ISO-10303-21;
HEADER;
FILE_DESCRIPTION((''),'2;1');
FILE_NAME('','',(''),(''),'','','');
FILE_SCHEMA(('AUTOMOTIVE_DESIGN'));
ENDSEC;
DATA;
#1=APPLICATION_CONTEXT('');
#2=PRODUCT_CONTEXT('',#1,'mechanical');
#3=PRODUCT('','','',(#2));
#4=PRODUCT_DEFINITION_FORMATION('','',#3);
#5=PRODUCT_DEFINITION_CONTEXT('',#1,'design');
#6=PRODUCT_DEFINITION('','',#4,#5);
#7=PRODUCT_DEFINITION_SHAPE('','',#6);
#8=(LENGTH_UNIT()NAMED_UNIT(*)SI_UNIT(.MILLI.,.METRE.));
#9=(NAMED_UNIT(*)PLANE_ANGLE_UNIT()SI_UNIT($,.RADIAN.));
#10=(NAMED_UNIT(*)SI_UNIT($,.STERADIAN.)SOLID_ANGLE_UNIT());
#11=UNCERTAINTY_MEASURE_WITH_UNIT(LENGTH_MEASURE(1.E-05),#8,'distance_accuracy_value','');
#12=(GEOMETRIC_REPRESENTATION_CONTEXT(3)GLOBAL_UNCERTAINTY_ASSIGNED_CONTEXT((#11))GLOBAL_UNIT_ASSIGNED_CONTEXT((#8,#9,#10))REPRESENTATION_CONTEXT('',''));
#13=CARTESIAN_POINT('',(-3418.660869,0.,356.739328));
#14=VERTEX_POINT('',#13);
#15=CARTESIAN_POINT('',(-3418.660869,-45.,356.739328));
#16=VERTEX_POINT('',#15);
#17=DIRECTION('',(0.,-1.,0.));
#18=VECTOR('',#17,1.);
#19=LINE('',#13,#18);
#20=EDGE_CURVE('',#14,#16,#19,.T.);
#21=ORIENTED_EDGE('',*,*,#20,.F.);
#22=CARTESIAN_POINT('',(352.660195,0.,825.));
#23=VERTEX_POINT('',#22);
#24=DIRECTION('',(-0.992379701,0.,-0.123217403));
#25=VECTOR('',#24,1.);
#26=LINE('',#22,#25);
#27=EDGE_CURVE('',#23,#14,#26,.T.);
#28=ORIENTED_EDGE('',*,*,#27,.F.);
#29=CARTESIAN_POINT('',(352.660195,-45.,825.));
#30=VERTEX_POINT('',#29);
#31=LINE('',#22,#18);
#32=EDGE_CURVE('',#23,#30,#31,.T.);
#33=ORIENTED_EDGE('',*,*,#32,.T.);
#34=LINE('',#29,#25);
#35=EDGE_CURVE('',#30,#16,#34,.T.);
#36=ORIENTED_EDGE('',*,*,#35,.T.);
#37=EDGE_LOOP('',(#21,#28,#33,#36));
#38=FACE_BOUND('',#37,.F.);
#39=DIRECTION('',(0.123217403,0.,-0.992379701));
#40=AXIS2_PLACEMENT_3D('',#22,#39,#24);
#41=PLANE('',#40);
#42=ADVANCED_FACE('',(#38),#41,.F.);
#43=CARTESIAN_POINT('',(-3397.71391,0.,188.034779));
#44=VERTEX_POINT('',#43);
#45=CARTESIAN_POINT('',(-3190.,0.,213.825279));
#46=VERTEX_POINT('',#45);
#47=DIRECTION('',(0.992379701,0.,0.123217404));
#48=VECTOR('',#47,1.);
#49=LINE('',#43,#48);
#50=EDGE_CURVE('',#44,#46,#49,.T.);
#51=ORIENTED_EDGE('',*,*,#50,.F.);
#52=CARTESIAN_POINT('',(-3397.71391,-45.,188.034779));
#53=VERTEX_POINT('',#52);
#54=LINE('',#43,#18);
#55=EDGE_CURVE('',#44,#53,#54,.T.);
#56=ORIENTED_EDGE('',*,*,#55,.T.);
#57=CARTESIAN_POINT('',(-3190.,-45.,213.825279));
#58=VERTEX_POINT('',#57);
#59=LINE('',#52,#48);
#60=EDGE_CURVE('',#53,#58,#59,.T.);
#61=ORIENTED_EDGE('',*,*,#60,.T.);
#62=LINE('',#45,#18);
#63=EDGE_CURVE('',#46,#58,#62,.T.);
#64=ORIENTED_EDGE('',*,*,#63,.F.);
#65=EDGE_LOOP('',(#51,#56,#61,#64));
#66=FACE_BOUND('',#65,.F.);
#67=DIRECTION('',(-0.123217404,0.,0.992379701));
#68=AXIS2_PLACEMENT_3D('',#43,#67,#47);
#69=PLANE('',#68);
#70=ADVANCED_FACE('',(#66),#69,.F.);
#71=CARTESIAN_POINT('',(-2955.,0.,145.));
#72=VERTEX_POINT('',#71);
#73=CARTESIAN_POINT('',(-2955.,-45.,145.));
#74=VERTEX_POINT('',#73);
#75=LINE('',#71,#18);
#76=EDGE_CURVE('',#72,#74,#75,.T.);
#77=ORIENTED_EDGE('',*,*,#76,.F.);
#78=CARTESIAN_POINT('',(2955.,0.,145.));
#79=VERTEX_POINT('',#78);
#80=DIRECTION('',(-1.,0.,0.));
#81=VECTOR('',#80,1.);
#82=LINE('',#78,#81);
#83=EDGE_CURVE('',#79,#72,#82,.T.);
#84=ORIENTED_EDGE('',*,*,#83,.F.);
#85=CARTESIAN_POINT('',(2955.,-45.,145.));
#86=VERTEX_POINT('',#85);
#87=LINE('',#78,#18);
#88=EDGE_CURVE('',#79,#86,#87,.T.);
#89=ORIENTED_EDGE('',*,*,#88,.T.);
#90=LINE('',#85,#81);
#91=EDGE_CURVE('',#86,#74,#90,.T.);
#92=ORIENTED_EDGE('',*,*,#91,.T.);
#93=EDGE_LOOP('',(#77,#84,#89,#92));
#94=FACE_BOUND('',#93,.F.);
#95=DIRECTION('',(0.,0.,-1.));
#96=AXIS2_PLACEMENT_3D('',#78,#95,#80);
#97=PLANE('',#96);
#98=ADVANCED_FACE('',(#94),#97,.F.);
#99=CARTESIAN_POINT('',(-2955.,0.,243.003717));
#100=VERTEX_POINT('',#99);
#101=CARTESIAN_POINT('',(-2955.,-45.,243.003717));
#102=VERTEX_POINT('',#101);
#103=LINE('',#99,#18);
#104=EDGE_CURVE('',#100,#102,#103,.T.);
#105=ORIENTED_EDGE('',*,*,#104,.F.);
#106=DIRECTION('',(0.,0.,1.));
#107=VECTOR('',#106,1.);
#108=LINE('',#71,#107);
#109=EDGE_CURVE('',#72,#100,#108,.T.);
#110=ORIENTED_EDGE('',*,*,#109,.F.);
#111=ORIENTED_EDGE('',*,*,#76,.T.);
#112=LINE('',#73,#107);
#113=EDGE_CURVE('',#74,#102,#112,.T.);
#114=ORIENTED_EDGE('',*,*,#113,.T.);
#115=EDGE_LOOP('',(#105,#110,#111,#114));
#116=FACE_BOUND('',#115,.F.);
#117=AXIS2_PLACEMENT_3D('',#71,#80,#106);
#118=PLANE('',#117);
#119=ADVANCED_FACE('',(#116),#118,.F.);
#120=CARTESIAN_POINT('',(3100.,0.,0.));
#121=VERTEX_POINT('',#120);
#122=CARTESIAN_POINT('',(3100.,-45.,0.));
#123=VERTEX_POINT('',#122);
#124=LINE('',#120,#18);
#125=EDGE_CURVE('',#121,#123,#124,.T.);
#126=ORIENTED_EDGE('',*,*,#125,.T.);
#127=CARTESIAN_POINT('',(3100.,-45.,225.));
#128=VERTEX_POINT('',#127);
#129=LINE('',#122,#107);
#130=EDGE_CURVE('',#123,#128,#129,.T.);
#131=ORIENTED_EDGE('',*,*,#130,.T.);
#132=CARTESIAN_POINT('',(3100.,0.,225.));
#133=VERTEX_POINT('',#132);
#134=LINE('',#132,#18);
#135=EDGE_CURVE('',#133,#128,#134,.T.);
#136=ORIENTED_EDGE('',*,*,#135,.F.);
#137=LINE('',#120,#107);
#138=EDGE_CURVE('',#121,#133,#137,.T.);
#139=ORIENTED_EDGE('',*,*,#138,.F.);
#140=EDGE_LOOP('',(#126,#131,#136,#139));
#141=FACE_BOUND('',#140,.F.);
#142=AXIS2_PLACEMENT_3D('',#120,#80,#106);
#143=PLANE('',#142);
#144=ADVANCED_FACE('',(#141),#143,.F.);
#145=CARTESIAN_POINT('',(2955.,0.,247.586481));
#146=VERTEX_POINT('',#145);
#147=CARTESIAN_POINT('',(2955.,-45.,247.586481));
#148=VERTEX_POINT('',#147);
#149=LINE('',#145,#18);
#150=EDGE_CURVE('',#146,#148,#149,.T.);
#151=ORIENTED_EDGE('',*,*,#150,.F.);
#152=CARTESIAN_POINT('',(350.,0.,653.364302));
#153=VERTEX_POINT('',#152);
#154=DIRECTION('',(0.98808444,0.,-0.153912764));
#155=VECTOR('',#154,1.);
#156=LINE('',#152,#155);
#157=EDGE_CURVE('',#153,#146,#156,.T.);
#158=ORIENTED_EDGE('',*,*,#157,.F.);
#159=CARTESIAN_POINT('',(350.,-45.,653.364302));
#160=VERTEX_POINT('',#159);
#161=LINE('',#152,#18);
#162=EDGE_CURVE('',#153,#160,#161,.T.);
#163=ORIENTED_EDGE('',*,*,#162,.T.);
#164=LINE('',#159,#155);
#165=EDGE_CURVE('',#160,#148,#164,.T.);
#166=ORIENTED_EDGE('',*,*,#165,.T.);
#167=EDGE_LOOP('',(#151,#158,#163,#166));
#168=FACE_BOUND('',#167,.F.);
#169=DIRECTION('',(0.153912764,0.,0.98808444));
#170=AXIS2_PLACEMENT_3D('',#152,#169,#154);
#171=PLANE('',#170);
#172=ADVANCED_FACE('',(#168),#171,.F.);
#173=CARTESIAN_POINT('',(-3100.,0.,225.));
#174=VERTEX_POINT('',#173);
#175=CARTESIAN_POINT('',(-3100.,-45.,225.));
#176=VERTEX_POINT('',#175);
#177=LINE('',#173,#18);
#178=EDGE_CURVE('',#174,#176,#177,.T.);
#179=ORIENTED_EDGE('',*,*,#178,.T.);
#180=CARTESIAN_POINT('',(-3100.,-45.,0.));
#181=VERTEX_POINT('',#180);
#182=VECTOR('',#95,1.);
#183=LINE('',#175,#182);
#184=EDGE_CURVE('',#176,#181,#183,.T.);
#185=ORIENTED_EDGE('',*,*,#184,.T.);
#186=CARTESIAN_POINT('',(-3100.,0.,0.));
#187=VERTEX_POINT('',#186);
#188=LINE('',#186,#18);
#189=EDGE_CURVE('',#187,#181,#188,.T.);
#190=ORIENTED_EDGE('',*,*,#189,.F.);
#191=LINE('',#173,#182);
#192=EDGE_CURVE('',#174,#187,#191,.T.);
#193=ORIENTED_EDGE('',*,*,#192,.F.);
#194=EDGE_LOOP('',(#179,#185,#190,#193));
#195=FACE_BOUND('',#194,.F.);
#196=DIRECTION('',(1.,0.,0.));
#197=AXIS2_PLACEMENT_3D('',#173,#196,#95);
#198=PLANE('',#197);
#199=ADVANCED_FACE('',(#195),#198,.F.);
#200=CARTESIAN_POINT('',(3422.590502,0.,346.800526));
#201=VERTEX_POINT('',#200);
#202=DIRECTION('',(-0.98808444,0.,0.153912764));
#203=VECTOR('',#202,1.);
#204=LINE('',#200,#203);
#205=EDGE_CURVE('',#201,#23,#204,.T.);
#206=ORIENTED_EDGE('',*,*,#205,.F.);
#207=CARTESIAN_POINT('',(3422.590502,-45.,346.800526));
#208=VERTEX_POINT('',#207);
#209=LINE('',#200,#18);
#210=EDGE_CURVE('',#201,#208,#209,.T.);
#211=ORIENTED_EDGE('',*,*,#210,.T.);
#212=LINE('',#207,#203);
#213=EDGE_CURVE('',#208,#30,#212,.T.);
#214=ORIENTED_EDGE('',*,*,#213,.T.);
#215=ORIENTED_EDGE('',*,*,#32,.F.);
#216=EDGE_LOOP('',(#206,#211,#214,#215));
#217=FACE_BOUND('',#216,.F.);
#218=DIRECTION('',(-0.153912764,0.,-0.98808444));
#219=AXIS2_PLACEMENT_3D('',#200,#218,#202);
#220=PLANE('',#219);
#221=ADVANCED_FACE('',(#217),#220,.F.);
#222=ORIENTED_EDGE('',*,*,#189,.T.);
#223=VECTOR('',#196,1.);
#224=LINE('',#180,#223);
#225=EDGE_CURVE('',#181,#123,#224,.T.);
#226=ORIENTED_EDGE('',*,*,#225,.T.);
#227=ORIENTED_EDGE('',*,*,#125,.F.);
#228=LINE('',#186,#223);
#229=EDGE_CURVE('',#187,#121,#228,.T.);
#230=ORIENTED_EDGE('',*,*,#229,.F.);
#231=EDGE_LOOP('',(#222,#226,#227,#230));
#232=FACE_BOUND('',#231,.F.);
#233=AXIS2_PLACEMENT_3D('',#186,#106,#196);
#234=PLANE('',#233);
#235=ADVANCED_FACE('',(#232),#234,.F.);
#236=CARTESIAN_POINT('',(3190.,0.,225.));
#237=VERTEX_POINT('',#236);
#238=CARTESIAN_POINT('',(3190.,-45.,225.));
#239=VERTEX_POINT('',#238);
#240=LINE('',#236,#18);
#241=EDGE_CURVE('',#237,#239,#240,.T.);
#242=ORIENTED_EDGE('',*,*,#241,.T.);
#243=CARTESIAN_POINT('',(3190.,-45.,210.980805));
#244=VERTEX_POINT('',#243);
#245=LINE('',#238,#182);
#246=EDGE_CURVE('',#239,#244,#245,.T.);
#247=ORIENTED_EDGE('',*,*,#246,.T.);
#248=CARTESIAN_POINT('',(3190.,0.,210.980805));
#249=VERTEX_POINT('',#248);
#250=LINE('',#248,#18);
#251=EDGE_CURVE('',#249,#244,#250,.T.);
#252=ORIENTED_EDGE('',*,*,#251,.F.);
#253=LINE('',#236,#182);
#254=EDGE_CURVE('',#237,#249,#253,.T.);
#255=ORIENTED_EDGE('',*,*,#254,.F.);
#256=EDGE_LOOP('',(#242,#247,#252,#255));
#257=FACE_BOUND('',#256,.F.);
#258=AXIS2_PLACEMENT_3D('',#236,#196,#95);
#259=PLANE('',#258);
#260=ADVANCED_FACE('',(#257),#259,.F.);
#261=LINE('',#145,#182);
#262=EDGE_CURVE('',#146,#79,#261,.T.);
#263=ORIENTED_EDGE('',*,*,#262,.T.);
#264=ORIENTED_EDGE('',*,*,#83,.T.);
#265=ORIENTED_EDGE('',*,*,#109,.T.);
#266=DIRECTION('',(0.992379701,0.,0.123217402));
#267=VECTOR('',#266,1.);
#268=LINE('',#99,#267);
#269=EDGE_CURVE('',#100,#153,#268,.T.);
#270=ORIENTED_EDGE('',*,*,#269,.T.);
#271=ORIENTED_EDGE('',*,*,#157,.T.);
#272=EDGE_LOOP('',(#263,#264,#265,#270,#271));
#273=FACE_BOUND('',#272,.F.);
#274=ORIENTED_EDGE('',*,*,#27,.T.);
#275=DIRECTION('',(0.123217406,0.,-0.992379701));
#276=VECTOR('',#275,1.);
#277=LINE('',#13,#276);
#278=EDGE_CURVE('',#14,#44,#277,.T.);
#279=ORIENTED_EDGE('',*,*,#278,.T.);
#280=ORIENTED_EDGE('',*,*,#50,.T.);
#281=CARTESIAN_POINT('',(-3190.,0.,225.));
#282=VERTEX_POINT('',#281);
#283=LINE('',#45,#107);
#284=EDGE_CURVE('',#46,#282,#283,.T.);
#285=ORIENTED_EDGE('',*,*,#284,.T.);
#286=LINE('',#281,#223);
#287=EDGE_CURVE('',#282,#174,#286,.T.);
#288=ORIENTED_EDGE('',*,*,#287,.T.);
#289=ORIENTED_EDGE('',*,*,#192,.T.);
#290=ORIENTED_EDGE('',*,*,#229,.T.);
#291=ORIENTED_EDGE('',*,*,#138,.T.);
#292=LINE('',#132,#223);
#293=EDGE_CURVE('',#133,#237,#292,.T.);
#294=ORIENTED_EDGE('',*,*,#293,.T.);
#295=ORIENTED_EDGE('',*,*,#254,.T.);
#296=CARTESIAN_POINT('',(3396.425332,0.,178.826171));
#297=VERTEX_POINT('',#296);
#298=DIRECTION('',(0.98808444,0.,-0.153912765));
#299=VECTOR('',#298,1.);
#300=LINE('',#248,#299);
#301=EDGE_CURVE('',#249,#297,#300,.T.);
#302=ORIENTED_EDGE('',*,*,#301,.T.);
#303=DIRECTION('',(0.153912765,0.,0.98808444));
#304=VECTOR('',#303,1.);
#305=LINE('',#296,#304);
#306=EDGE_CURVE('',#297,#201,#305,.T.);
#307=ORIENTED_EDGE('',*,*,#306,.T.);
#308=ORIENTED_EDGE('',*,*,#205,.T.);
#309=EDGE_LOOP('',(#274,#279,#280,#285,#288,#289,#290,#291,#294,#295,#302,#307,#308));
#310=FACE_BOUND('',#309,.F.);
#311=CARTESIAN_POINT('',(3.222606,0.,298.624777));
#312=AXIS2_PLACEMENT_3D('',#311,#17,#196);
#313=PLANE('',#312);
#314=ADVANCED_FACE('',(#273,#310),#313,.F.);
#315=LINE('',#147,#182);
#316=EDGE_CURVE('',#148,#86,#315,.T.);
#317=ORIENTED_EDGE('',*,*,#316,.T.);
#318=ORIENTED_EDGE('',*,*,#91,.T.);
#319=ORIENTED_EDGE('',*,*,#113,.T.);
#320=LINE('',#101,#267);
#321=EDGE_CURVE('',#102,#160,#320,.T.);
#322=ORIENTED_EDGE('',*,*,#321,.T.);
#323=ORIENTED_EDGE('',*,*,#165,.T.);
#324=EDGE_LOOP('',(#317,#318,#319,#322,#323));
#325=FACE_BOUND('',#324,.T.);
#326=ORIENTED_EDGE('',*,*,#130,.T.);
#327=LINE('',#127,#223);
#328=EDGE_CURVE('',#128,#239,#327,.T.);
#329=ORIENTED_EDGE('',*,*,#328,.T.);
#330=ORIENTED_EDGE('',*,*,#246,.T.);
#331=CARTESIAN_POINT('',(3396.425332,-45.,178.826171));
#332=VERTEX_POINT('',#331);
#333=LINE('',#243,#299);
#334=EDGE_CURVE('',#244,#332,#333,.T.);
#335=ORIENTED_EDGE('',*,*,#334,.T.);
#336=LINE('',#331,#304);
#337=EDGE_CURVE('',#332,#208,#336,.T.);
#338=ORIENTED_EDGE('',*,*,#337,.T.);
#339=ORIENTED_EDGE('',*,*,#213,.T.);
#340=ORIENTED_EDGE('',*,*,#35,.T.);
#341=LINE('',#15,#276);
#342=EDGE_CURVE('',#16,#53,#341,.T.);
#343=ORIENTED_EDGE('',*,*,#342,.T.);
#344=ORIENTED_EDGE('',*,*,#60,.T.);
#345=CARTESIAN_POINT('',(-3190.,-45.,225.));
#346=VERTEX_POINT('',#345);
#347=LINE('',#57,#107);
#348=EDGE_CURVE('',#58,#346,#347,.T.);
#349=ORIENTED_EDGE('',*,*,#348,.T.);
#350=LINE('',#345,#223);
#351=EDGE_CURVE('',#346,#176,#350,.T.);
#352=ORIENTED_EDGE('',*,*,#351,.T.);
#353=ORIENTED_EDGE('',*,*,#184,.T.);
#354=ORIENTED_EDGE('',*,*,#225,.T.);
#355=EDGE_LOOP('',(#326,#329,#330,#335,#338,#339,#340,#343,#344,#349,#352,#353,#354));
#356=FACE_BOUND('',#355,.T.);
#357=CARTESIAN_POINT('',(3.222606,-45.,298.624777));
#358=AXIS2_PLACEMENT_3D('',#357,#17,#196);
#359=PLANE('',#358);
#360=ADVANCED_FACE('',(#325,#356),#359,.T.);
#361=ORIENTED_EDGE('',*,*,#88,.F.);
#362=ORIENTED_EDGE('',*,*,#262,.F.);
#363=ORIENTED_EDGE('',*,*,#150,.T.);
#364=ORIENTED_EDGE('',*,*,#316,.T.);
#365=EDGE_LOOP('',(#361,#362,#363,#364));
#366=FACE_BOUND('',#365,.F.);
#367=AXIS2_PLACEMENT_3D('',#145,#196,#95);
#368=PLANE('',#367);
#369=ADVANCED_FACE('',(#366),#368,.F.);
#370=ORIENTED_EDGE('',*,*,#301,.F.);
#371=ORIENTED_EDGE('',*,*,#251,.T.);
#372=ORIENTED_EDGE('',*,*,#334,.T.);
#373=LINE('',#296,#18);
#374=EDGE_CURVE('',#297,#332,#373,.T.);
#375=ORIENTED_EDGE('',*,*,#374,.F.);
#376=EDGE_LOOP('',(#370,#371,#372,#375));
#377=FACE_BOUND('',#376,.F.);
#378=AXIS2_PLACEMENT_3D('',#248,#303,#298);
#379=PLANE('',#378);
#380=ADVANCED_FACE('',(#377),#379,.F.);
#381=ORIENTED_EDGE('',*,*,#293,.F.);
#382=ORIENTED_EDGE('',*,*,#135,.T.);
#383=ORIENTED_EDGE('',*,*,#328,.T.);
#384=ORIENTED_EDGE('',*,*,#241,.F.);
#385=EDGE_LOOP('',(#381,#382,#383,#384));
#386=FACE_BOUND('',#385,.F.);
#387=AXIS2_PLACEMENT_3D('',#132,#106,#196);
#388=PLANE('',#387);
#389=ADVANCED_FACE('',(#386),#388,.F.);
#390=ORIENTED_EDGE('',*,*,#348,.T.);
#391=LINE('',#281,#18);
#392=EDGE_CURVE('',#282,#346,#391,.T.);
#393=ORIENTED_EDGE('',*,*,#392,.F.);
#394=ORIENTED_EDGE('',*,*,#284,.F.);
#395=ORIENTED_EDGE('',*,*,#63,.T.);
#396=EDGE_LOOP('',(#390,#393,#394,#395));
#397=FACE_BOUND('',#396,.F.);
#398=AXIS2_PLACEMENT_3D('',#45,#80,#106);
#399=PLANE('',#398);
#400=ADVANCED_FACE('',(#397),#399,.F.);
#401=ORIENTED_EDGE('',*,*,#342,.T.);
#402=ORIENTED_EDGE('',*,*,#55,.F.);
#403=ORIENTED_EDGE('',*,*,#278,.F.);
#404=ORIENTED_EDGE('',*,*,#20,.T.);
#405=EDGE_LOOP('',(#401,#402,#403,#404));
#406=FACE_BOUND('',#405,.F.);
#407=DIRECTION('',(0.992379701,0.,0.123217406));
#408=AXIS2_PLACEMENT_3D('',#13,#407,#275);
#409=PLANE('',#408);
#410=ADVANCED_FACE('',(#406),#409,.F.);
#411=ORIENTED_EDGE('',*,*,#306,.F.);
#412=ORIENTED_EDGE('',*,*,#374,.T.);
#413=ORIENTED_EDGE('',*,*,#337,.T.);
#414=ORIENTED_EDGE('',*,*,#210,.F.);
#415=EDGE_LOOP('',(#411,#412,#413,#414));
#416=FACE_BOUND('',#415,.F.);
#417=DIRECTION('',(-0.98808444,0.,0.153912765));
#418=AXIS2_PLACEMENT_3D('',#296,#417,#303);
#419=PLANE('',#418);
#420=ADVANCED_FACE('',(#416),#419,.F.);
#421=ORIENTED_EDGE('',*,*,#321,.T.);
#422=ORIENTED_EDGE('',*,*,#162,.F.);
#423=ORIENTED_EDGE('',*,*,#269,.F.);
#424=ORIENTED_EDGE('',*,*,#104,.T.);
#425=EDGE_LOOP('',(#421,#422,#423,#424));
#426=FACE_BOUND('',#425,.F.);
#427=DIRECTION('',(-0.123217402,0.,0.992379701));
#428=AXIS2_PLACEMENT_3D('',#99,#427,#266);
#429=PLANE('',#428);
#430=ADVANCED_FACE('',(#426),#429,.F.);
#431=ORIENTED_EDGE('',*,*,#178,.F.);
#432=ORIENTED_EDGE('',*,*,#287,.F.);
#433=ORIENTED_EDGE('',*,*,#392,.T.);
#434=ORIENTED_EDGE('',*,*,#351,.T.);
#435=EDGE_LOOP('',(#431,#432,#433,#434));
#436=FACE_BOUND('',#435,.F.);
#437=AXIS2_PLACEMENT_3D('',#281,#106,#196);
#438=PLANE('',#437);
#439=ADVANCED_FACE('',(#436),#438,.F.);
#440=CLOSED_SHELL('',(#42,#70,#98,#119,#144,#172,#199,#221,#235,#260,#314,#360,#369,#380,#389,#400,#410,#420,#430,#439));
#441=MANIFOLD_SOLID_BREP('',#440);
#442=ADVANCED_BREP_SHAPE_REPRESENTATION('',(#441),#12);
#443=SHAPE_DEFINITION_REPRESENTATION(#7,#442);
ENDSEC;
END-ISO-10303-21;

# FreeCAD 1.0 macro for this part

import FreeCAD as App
import Part
import Sketcher


def add_polygon(sketch, points):
    """Adds a closed chain of lines whose ends are joined by coincident constraints."""
    first, n = sketch.GeometryCount, len(points)
    for a, b in zip(points, points[1:] + points[:1]):
        sketch.addGeometry(Part.LineSegment(App.Vector(*a, 0), App.Vector(*b, 0)), False)
    for i in range(n):
        sketch.addConstraint(Sketcher.Constraint("Coincident", first + i, 2, first + (i + 1) % n, 1))

doc = App.newDocument("Part")
body = doc.addObject("PartDesign::Body", "Body")

# Sketch on XZ plane
sketch1 = body.newObject("Sketcher::SketchObject", "Sketch")
sketch1.AttachmentSupport = (doc.getObject("XZ_Plane"), [""])
sketch1.MapMode = "FlatFace"
add_polygon(sketch1, [(-3100, 225), (-3100, 0), (3100, 0), (3100, 225), (3190, 225), (3190, 211), (3396, 179), (3423, 347), (353, 825), (-3419, 357), (-3398, 188), (-3190, 214), (-3190, 225)])  # lines 0-12
add_polygon(sketch1, [(2955, 145), (-2955, 145), (-2955, 243), (350, 653), (2955, 248)])  # lines 13-17
sketch1.addConstraint(Sketcher.Constraint("Vertical", 0))
sketch1.addConstraint(Sketcher.Constraint("Horizontal", 1))
sketch1.addConstraint(Sketcher.Constraint("Vertical", 2))
sketch1.addConstraint(Sketcher.Constraint("Horizontal", 3))
sketch1.addConstraint(Sketcher.Constraint("Vertical", 4))
sketch1.addConstraint(Sketcher.Constraint("Vertical", 11))
sketch1.addConstraint(Sketcher.Constraint("Horizontal", 12))
sketch1.addConstraint(Sketcher.Constraint("Horizontal", 13))
sketch1.addConstraint(Sketcher.Constraint("Vertical", 14))
sketch1.addConstraint(Sketcher.Constraint("Vertical", 17))
sketch1.addConstraint(Sketcher.Constraint("Symmetric", 0, 2, 1, 2, -1, 1))
sketch1.addConstraint(Sketcher.Constraint("Symmetric", 3, 2, 11, 2, -2))
sketch1.addConstraint(Sketcher.Constraint("Perpendicular", 5, 6))
sketch1.addConstraint(Sketcher.Constraint("Perpendicular", 6, 7))
sketch1.addConstraint(Sketcher.Constraint("Perpendicular", 8, 9))
sketch1.addConstraint(Sketcher.Constraint("Perpendicular", 9, 10))
sketch1.addConstraint(Sketcher.Constraint("Parallel", 10, 15))
sketch1.addConstraint(Sketcher.Constraint("Parallel", 7, 16))
sketch1.addConstraint(Sketcher.Constraint("Equal", 6, 9))
sketch1.addConstraint(Sketcher.Constraint("DistanceX", 1, 1, 1, 2, 6200.0))
sketch1.addConstraint(Sketcher.Constraint("DistanceX", 3, 1, 3, 2, 90.0))
sketch1.addConstraint(Sketcher.Constraint("DistanceX", 13, 2, 13, 1, 5910.0))
sketch1.addConstraint(Sketcher.Constraint("DistanceY", 0, 2, 0, 1, 225.0))
sketch1.addConstraint(Sketcher.Constraint("Distance", 6, 170.0))
sketch1.addConstraint(Sketcher.Constraint("DistanceY", -1, 1, 7, 2, 825.0))
sketch1.addConstraint(Sketcher.Constraint("DistanceX", 13, 2, -1, 1, 2955.0))
sketch1.addConstraint(Sketcher.Constraint("DistanceY", -1, 1, 13, 2, 145.0))
sketch1.addConstraint(Sketcher.Constraint("DistanceX", -1, 1, 15, 2, 350.0))
sketch1.addConstraint(Sketcher.Constraint("DistanceY", 11, 1, 11, 2, 11.174721))
sketch1.addConstraint(Sketcher.Constraint("DistanceY", 17, 2, 17, 1, 102.586481))
sketch1.addConstraint(Sketcher.Constraint("DistanceY", -1, 1, 15, 2, 653.364302))
sketch1.addConstraint(Sketcher.Constraint("DistanceX", 2, 2, 6, 2, 322.590502))
sketch1.addConstraint(Sketcher.Constraint("DistanceY", 9, 2, 10, 2, 25.7905))
sketch1.addConstraint(Sketcher.Constraint("Distance", 7, 3106.951372))
pad1 = body.newObject("PartDesign::Pad", "Pad")
pad1.Profile = sketch1
pad1.Length = 45

doc.recompute()
